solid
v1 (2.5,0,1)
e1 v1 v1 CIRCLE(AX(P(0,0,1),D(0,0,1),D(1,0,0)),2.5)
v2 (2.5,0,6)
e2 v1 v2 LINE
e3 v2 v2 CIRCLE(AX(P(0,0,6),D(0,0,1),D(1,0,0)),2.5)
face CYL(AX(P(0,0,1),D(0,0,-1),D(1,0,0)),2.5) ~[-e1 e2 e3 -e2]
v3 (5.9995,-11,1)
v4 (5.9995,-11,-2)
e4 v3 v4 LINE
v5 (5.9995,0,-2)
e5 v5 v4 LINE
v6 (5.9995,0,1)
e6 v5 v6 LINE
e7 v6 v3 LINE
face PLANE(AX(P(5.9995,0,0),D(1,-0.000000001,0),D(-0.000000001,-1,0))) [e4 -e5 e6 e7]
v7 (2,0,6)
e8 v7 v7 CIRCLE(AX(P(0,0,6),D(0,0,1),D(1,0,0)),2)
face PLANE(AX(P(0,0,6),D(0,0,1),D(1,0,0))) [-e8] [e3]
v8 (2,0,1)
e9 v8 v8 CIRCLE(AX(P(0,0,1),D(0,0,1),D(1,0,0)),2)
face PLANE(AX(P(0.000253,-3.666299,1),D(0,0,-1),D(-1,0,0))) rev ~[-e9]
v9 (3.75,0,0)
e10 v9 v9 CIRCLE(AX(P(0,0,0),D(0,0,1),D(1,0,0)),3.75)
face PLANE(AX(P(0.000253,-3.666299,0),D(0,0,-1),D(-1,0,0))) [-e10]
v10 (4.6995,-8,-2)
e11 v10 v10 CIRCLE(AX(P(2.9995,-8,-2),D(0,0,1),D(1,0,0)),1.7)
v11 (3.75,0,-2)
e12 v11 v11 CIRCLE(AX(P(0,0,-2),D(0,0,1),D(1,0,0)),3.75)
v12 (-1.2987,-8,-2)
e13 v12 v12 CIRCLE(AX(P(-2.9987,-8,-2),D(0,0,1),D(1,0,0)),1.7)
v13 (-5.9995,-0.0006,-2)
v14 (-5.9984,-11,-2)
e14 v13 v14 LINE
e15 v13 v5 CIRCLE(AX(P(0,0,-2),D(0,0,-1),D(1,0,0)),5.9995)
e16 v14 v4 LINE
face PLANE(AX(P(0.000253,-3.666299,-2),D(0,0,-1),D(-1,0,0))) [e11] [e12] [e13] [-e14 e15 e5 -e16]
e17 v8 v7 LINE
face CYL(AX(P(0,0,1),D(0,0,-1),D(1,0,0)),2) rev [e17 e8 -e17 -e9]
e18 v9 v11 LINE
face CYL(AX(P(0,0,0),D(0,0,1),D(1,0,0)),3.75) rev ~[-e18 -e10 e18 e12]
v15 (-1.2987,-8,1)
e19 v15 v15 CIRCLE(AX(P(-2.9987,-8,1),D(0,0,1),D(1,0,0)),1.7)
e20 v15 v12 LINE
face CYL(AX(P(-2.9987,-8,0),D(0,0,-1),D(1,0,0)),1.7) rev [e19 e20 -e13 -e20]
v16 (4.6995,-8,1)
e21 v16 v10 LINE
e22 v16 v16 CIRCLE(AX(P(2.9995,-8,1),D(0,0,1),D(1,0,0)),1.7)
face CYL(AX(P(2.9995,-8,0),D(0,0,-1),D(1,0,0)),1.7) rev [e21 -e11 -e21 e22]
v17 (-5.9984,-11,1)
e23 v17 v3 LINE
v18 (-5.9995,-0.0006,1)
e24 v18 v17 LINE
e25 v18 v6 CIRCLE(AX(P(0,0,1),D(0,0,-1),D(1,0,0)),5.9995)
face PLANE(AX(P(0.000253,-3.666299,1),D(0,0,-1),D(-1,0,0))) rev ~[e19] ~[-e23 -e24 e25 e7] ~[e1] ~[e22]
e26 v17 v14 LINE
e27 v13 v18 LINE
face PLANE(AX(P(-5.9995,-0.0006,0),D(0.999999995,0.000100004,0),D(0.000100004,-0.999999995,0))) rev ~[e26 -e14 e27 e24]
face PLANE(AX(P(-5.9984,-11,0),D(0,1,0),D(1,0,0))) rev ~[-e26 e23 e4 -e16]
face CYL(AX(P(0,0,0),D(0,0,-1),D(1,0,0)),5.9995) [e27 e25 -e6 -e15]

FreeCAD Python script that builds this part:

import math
import FreeCAD as App
import Part
import Sketcher

doc = App.newDocument("Part")
params = doc.addObject("Spreadsheet::Sheet", "Params")
for row, (alias, value) in enumerate([
    ("sketch1_diameter", "3.4 mm"),
    ("sketch1_height", "11 mm"),
    ("pad1_length", "1 mm"),
    ("sketch2_diameter", "3.4 mm"),
    ("sketch2_diameter2", "7.5 mm"),
    ("sketch2_height", "11 mm"),
    ("pad2_length", "2 mm"),
    ("sketch3_diameter", "5 mm"),
    ("sketch3_diameter2", "4 mm"),
    ("pad3_length", "5 mm"),
], start=1):
    params.set(f"A{row}", alias)
    params.set(f"B{row}", "=" + value)
    params.setAlias(f"B{row}", alias)

body = doc.addObject("PartDesign::Body", "Body")

# Sketch on XY plane
sketch1 = body.newObject("Sketcher::SketchObject", "Sketch")
sketch1.AttachmentSupport = (doc.getObject("XY_Plane"), [""])
sketch1.MapMode = "FlatFace"
sketch1.addGeometry([
    Part.LineSegment(App.Vector(6, -11, 0), App.Vector(6, 0, 0)),  # 0
    Part.ArcOfCircle(Part.Circle(App.Vector(0, 0, 0), App.Vector(0, 0, 1), 6), math.radians(0), math.radians(180)),  # 1
    Part.LineSegment(App.Vector(-6, 0, 0), App.Vector(-6, -11, 0)),  # 2
    Part.LineSegment(App.Vector(-6, -11, 0), App.Vector(6, -11, 0)),  # 3
    Part.Circle(App.Vector(-3, -8, 0), App.Vector(0, 0, 1), 1.7),  # 4
    Part.Circle(App.Vector(3, -8, 0), App.Vector(0, 0, 1), 1.7),  # 5
], False)
sketch1.addConstraint([
    Sketcher.Constraint("Tangent", 0, 2, 1, 1),
    Sketcher.Constraint("Tangent", 1, 2, 2, 1),
    Sketcher.Constraint("Coincident", 2, 2, 3, 1),
    Sketcher.Constraint("Coincident", 3, 2, 0, 1),
    Sketcher.Constraint("Vertical", 0),
    Sketcher.Constraint("Horizontal", 3),
    Sketcher.Constraint("Coincident", 1, 3, -1, 1),
    Sketcher.Constraint("Equal", 4, 5),
    Sketcher.Constraint("Horizontal", 4, 3, 5, 3),
    Sketcher.Constraint("Diameter", 4, 3.4),
    Sketcher.Constraint("DistanceY", 0, 1, 0, 2, 11.0),
    Sketcher.Constraint("DistanceY", 4, 3, -1, 1, 8.0),
    Sketcher.Constraint("DistanceX", 5, 3, 0, 2, 3.0),
    Sketcher.Constraint("Radius", 1, 5.9995),
    Sketcher.Constraint("DistanceX", 3, 1, 3, 2, 11.998),
    Sketcher.Constraint("DistanceX", 4, 3, -1, 1, 2.9987),
])
sketch1.setExpression("Constraints[9]", "Params.sketch1_diameter")
sketch1.setExpression("Constraints[10]", "Params.sketch1_height")
pad1 = body.newObject("PartDesign::Pad", "Pad")
pad1.Profile = sketch1
pad1.setExpression("Length", "Params.pad1_length")

# Sketch on XY plane
sketch2 = body.newObject("Sketcher::SketchObject", "Sketch001")
sketch2.AttachmentSupport = (doc.getObject("XY_Plane"), [""])
sketch2.MapMode = "FlatFace"
sketch2.addGeometry([
    Part.LineSegment(App.Vector(6, -11, 0), App.Vector(6, 0, 0)),  # 0
    Part.ArcOfCircle(Part.Circle(App.Vector(0, 0, 0), App.Vector(0, 0, 1), 6), math.radians(0), math.radians(180)),  # 1
    Part.LineSegment(App.Vector(-6, 0, 0), App.Vector(-6, -11, 0)),  # 2
    Part.LineSegment(App.Vector(-6, -11, 0), App.Vector(6, -11, 0)),  # 3
    Part.Circle(App.Vector(-3, -8, 0), App.Vector(0, 0, 1), 1.7),  # 4
    Part.Circle(App.Vector(3, -8, 0), App.Vector(0, 0, 1), 1.7),  # 5
    Part.Circle(App.Vector(0, 0, 0), App.Vector(0, 0, 1), 3.8),  # 6
], False)
sketch2.addConstraint([
    Sketcher.Constraint("Tangent", 0, 2, 1, 1),
    Sketcher.Constraint("Tangent", 1, 2, 2, 1),
    Sketcher.Constraint("Coincident", 2, 2, 3, 1),
    Sketcher.Constraint("Coincident", 3, 2, 0, 1),
    Sketcher.Constraint("Vertical", 0),
    Sketcher.Constraint("Horizontal", 3),
    Sketcher.Constraint("Coincident", 1, 3, -1, 1),
    Sketcher.Constraint("Coincident", 6, 3, -1, 1),
    Sketcher.Constraint("Equal", 4, 5),
    Sketcher.Constraint("Horizontal", 4, 3, 5, 3),
    Sketcher.Constraint("Diameter", 4, 3.4),
    Sketcher.Constraint("Diameter", 6, 7.5),
    Sketcher.Constraint("DistanceY", 0, 1, 0, 2, 11.0),
    Sketcher.Constraint("DistanceY", 4, 3, -1, 1, 8.0),
    Sketcher.Constraint("DistanceX", 5, 3, 0, 2, 3.0),
    Sketcher.Constraint("Radius", 1, 5.9995),
    Sketcher.Constraint("DistanceX", 3, 1, 3, 2, 11.998),
    Sketcher.Constraint("DistanceX", 4, 3, -1, 1, 2.9987),
])
sketch2.setExpression("Constraints[10]", "Params.sketch2_diameter")
sketch2.setExpression("Constraints[11]", "Params.sketch2_diameter2")
sketch2.setExpression("Constraints[12]", "Params.sketch2_height")
pad2 = body.newObject("PartDesign::Pad", "Pad001")
pad2.Profile = sketch2
pad2.setExpression("Length", "Params.pad2_length")
pad2.Reversed = True

# Sketch on XY plane
sketch3 = body.newObject("Sketcher::SketchObject", "Sketch002")
sketch3.AttachmentSupport = (doc.getObject("XY_Plane"), [""])
sketch3.MapMode = "FlatFace"
sketch3.AttachmentOffset = App.Placement(App.Vector(0, 0, 1), App.Rotation())
sketch3.addGeometry([
    Part.Circle(App.Vector(0, 0, 0), App.Vector(0, 0, 1), 2.5),
    Part.Circle(App.Vector(0, 0, 0), App.Vector(0, 0, 1), 2),
], False)
sketch3.addConstraint([
    Sketcher.Constraint("Coincident", 0, 3, -1, 1),
    Sketcher.Constraint("Coincident", 1, 3, -1, 1),
    Sketcher.Constraint("Diameter", 0, 5.0),
    Sketcher.Constraint("Diameter", 1, 4.0),
])
sketch3.setExpression("Constraints[2]", "Params.sketch3_diameter")
sketch3.setExpression("Constraints[3]", "Params.sketch3_diameter2")
pad3 = body.newObject("PartDesign::Pad", "Pad002")
pad3.Profile = sketch3
pad3.setExpression("Length", "Params.pad3_length")

doc.recompute()
